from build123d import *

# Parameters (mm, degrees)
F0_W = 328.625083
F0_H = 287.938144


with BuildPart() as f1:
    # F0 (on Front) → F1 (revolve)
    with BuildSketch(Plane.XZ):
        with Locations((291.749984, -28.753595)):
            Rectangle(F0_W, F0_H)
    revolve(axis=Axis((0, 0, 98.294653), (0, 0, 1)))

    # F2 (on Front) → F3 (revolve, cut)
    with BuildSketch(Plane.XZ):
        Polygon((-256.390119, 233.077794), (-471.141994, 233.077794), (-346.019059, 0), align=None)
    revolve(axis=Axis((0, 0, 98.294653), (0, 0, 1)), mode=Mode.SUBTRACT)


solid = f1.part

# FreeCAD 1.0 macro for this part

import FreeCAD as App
import Part
import Sketcher
Q = App.Units.Quantity


def add_polygon(sketch, points):
    """Adds a closed chain of lines whose ends are joined by coincident constraints."""
    first, n = sketch.GeometryCount, len(points)
    for a, b in zip(points, points[1:] + points[:1]):
        sketch.addGeometry(Part.LineSegment(App.Vector(*a, 0), App.Vector(*b, 0)), False)
    for i in range(n):
        sketch.addConstraint(Sketcher.Constraint("Coincident", first + i, 2, first + (i + 1) % n, 1))

doc = App.newDocument("Part")
body = doc.addObject("PartDesign::Body", "Body")

sketch1 = body.newObject("Sketcher::SketchObject", "Sketch")
sketch1.AttachmentSupport = (doc.getObject("XZ_Plane"), [""])
sketch1.MapMode = "FlatFace"
add_polygon(sketch1, [(127, 115), (127, -173), (456, -173), (456, 115)])
sketch1.addConstraint(Sketcher.Constraint("Vertical", 0))
sketch1.addConstraint(Sketcher.Constraint("Horizontal", 1))
sketch1.addConstraint(Sketcher.Constraint("Vertical", 2))
sketch1.addConstraint(Sketcher.Constraint("Horizontal", 3))
sketch1.addConstraint(Sketcher.Constraint("DistanceX", 1, 1, 1, 2, Q("328.625083 mm")))
sketch1.addConstraint(Sketcher.Constraint("DistanceY", 0, 2, 0, 1, Q("287.938144 mm")))
sketch1.addConstraint(Sketcher.Constraint("DistanceX", -1, 1, 0, 2, Q("127.437443 mm")))
sketch1.addConstraint(Sketcher.Constraint("DistanceY", 0, 2, -1, 1, Q("172.722667 mm")))
revolution = body.newObject("PartDesign::Revolution", "Revolution")
revolution.Profile = sketch1
revolution.ReferenceAxis = (sketch1, ["V_Axis"])
revolution.Angle = 360

sketch2 = body.newObject("Sketcher::SketchObject", "Sketch001")
sketch2.AttachmentSupport = (doc.getObject("XZ_Plane"), [""])
sketch2.MapMode = "FlatFace"
add_polygon(sketch2, [(-256, 233), (-471, 233), (-346, 0)])
sketch2.addConstraint(Sketcher.Constraint("Horizontal", 0))
sketch2.addConstraint(Sketcher.Constraint("PointOnObject", 1, 2, -1))
sketch2.addConstraint(Sketcher.Constraint("Distance", 2, Q("249.71705 mm")))
sketch2.addConstraint(Sketcher.Constraint("DistanceX", 0, 2, 0, 1, Q("214.751875 mm")))
sketch2.addConstraint(Sketcher.Constraint("DistanceX", 1, 2, -1, 1, Q("346.019059 mm")))
sketch2.addConstraint(Sketcher.Constraint("DistanceX", 2, 2, -1, 1, Q("256.390119 mm")))
groove = body.newObject("PartDesign::Groove", "Groove")
groove.Profile = sketch2
groove.ReferenceAxis = (sketch2, ["V_Axis"])
groove.Angle = 360

doc.recompute()
